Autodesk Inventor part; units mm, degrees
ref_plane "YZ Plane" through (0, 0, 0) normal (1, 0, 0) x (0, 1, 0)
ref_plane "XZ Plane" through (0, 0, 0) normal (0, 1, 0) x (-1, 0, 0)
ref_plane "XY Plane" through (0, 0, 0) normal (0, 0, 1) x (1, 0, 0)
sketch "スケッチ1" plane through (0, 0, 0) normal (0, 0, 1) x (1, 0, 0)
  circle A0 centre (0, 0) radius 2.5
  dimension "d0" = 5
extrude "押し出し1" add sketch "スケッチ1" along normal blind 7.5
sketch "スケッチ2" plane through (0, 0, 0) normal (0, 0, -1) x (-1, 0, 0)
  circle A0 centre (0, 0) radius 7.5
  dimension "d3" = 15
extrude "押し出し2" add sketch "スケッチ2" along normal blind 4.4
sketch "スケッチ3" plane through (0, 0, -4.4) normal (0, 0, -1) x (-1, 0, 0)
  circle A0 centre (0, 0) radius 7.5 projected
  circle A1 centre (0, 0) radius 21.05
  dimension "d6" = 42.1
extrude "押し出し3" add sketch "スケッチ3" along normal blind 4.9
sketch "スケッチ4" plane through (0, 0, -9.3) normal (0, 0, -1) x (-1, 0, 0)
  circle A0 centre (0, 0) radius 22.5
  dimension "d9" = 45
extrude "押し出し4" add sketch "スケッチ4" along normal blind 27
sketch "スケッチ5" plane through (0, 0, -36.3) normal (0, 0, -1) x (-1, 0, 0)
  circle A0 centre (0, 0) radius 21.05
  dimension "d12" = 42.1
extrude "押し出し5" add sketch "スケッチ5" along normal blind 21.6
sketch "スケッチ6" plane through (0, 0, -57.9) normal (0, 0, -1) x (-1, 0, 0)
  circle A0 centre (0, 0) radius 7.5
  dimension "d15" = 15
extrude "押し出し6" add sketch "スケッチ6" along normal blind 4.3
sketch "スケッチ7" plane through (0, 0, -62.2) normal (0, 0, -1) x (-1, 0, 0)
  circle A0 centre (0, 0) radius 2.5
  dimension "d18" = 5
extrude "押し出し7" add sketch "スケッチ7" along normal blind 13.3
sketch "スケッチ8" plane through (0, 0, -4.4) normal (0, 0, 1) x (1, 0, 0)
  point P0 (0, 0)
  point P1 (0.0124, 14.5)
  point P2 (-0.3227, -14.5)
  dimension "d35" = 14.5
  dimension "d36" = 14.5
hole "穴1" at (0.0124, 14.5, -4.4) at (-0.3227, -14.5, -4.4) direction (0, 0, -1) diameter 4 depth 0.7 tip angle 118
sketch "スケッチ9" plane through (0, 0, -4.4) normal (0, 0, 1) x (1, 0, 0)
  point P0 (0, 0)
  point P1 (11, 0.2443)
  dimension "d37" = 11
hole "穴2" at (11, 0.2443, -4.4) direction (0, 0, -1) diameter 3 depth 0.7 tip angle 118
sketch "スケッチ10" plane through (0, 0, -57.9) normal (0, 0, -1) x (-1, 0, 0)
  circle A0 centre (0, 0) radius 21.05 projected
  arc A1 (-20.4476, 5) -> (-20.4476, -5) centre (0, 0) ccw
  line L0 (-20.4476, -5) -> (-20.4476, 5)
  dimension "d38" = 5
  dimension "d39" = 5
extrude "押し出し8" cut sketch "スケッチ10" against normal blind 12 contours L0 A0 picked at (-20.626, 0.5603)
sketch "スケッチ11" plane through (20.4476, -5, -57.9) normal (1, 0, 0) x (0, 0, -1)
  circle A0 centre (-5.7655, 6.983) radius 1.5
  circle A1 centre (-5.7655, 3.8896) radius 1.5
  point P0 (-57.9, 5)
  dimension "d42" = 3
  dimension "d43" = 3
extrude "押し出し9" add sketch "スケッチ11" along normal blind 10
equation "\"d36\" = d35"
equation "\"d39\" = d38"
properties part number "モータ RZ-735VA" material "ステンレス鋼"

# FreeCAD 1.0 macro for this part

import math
import FreeCAD as App
import Part
import Sketcher
from FreeCAD import Vector

doc = App.newDocument("Part")
params = doc.addObject("Spreadsheet::Sheet", "Params")
for row, (alias, value) in enumerate([
    ("sketch1_diameter", "5 mm"),
    ("pad1_length", "7.5 mm"),
    ("sketch2_diameter", "15 mm"),
    ("pad2_length", "4.4 mm"),
    ("sketch3_diameter", "42.1 mm"),
    ("sketch3_diameter2", "15 mm"),
    ("pad3_length", "4.9 mm"),
    ("sketch4_diameter", "45 mm"),
    ("pad4_length", "27 mm"),
    ("sketch5_diameter", "42.1 mm"),
    ("pad5_length", "21.6 mm"),
    ("sketch6_diameter", "15 mm"),
    ("pad6_length", "4.3 mm"),
    ("sketch7_diameter", "5 mm"),
    ("pad7_length", "13.3 mm"),
    ("sketch8_diameter", "4 mm"),
    ("hole_diameter", "4 mm"),
    ("hole_depth", "0.7 mm"),
    ("sketch9_diameter", "3 mm"),
    ("hole2_diameter", "3 mm"),
    ("hole2_depth", "0.7 mm"),
    ("sketch10_radius", "21.05 mm"),
    ("pocket1_length", "12 mm"),
    ("sketch11_diameter", "3 mm"),
    ("pad8_length", "10 mm"),
], start=1):
    params.set(f"A{row}", alias)
    params.set(f"B{row}", "=" + value)
    params.setAlias(f"B{row}", alias)

body = doc.addObject("PartDesign::Body", "Body")
body.AllowCompound = True

sketch1 = doc.addObject("Sketcher::SketchObject", "Sketch")
body.addObject(sketch1)
sketch1.AttachmentSupport = (doc.XY_Plane, [""])
sketch1.MapMode = "FlatFace"
sketch1.addGeometry(Part.Circle(Vector(0, 0, 0), Vector(0, 0, 1), 2.5), False)
sketch1.addConstraint([
    Sketcher.Constraint("Coincident", 0, 3, -1, 1),
    Sketcher.Constraint("Diameter", 0, 5.0),
])
sketch1.setExpression("Constraints[1]", "Params.sketch1_diameter")
pad1 = doc.addObject("PartDesign::Pad", "Pad")
body.addObject(pad1)
pad1.Profile = sketch1
pad1.setExpression("Length", "Params.pad1_length")

sketch2 = doc.addObject("Sketcher::SketchObject", "Sketch001")
body.addObject(sketch2)
sketch2.AttachmentSupport = (doc.XY_Plane, [""])
sketch2.MapMode = "FlatFace"
sketch2.addGeometry(Part.Circle(Vector(0, 0, 0), Vector(0, 0, 1), 8), False)
sketch2.addConstraint([
    Sketcher.Constraint("Coincident", 0, 3, -1, 1),
    Sketcher.Constraint("Diameter", 0, 15.0),
])
sketch2.setExpression("Constraints[1]", "Params.sketch2_diameter")
pad2 = doc.addObject("PartDesign::Pad", "Pad001")
body.addObject(pad2)
pad2.Profile = sketch2
pad2.setExpression("Length", "Params.pad2_length")
pad2.Reversed = True

sketch3 = doc.addObject("Sketcher::SketchObject", "Sketch002")
body.addObject(sketch3)
sketch3.AttachmentSupport = (doc.XY_Plane, [""])
sketch3.MapMode = "FlatFace"
sketch3.AttachmentOffset = App.Placement(Vector(0, 0, -4.4), App.Rotation())
sketch3.addGeometry([
    Part.Circle(Vector(0, 0, 0), Vector(0, 0, 1), 21),
    Part.Circle(Vector(0, 0, 0), Vector(0, 0, 1), 8),
], False)
sketch3.addConstraint([
    Sketcher.Constraint("Coincident", 0, 3, -1, 1),
    Sketcher.Constraint("Coincident", 1, 3, -1, 1),
    Sketcher.Constraint("Diameter", 0, 42.1),
    Sketcher.Constraint("Diameter", 1, 15.0),
])
sketch3.setExpression("Constraints[2]", "Params.sketch3_diameter")
sketch3.setExpression("Constraints[3]", "Params.sketch3_diameter2")
pad3 = doc.addObject("PartDesign::Pad", "Pad002")
body.addObject(pad3)
pad3.Profile = sketch3
pad3.setExpression("Length", "Params.pad3_length")
pad3.Reversed = True

sketch4 = doc.addObject("Sketcher::SketchObject", "Sketch003")
body.addObject(sketch4)
sketch4.AttachmentSupport = (doc.XY_Plane, [""])
sketch4.MapMode = "FlatFace"
sketch4.AttachmentOffset = App.Placement(Vector(0, 0, -9.3), App.Rotation())
sketch4.addGeometry(Part.Circle(Vector(0, 0, 0), Vector(0, 0, 1), 22), False)
sketch4.addConstraint([
    Sketcher.Constraint("Coincident", 0, 3, -1, 1),
    Sketcher.Constraint("Diameter", 0, 45.0),
])
sketch4.setExpression("Constraints[1]", "Params.sketch4_diameter")
pad4 = doc.addObject("PartDesign::Pad", "Pad003")
body.addObject(pad4)
pad4.Profile = sketch4
pad4.setExpression("Length", "Params.pad4_length")
pad4.Reversed = True

sketch5 = doc.addObject("Sketcher::SketchObject", "Sketch004")
body.addObject(sketch5)
sketch5.AttachmentSupport = (doc.XY_Plane, [""])
sketch5.MapMode = "FlatFace"
sketch5.AttachmentOffset = App.Placement(Vector(0, 0, -36.3), App.Rotation())
sketch5.addGeometry(Part.Circle(Vector(0, 0, 0), Vector(0, 0, 1), 21), False)
sketch5.addConstraint([
    Sketcher.Constraint("Coincident", 0, 3, -1, 1),
    Sketcher.Constraint("Diameter", 0, 42.1),
])
sketch5.setExpression("Constraints[1]", "Params.sketch5_diameter")
pad5 = doc.addObject("PartDesign::Pad", "Pad004")
body.addObject(pad5)
pad5.Profile = sketch5
pad5.setExpression("Length", "Params.pad5_length")
pad5.Reversed = True

sketch6 = doc.addObject("Sketcher::SketchObject", "Sketch005")
body.addObject(sketch6)
sketch6.AttachmentSupport = (doc.XY_Plane, [""])
sketch6.MapMode = "FlatFace"
sketch6.AttachmentOffset = App.Placement(Vector(0, 0, -57.9), App.Rotation())
sketch6.addGeometry(Part.Circle(Vector(0, 0, 0), Vector(0, 0, 1), 8), False)
sketch6.addConstraint([
    Sketcher.Constraint("Coincident", 0, 3, -1, 1),
    Sketcher.Constraint("Diameter", 0, 15.0),
])
sketch6.setExpression("Constraints[1]", "Params.sketch6_diameter")
pad6 = doc.addObject("PartDesign::Pad", "Pad005")
body.addObject(pad6)
pad6.Profile = sketch6
pad6.setExpression("Length", "Params.pad6_length")
pad6.Reversed = True

sketch7 = doc.addObject("Sketcher::SketchObject", "Sketch006")
body.addObject(sketch7)
sketch7.AttachmentSupport = (doc.XY_Plane, [""])
sketch7.MapMode = "FlatFace"
sketch7.AttachmentOffset = App.Placement(Vector(0, 0, -62.2), App.Rotation())
sketch7.addGeometry(Part.Circle(Vector(0, 0, 0), Vector(0, 0, 1), 2.5), False)
sketch7.addConstraint([
    Sketcher.Constraint("Coincident", 0, 3, -1, 1),
    Sketcher.Constraint("Diameter", 0, 5.0),
])
sketch7.setExpression("Constraints[1]", "Params.sketch7_diameter")
pad7 = doc.addObject("PartDesign::Pad", "Pad006")
body.addObject(pad7)
pad7.Profile = sketch7
pad7.setExpression("Length", "Params.pad7_length")
pad7.Reversed = True

sketch8 = doc.addObject("Sketcher::SketchObject", "Sketch007")
body.addObject(sketch8)
sketch8.AttachmentSupport = (doc.XY_Plane, [""])
sketch8.MapMode = "FlatFace"
sketch8.AttachmentOffset = App.Placement(Vector(0, 0, -4.4), App.Rotation())
sketch8.addGeometry([
    Part.Circle(Vector(0, 14.5, 0), Vector(0, 0, 1), 2),
    Part.Circle(Vector(-0.3, -14.5, 0), Vector(0, 0, 1), 2),
], False)
sketch8.addConstraint([
    Sketcher.Constraint("Equal", 0, 1),
    Sketcher.Constraint("Diameter", 0, 4.0),
    Sketcher.Constraint("DistanceY", 1, 3, 0, 3, 29.0),
    Sketcher.Constraint("DistanceY", -1, 1, 0, 3, 14.5),
    Sketcher.Constraint("DistanceX", 1, 3, 0, 3, 0.335),
    Sketcher.Constraint("DistanceX", -1, 1, 0, 3, 0.0124),
])
sketch8.setExpression("Constraints[1]", "Params.sketch8_diameter")
doc.recompute()
hole = doc.addObject("PartDesign::Hole", "Hole")
body.addObject(hole)
hole.Profile = sketch8
hole.ThreadType = "None"
hole.setExpression("Diameter", "Params.hole_diameter")
hole.DepthType = "Dimension"
hole.setExpression("Depth", "Params.hole_depth")
hole.DrillPoint = "Angled"
hole.DrillPointAngle = 118

sketch9 = doc.addObject("Sketcher::SketchObject", "Sketch008")
body.addObject(sketch9)
sketch9.AttachmentSupport = (doc.XY_Plane, [""])
sketch9.MapMode = "FlatFace"
sketch9.AttachmentOffset = App.Placement(Vector(0, 0, -4.4), App.Rotation())
sketch9.addGeometry(Part.Circle(Vector(11, 0.2, 0), Vector(0, 0, 1), 1.5), False)
sketch9.addConstraint([
    Sketcher.Constraint("Diameter", 0, 3.0),
    Sketcher.Constraint("DistanceX", -1, 1, 0, 3, 11.0),
    Sketcher.Constraint("DistanceY", -1, 1, 0, 3, 0.2443),
])
sketch9.setExpression("Constraints[0]", "Params.sketch9_diameter")
doc.recompute()
hole2 = doc.addObject("PartDesign::Hole", "Hole001")
body.addObject(hole2)
hole2.Profile = sketch9
hole2.ThreadType = "None"
hole2.setExpression("Diameter", "Params.hole2_diameter")
hole2.DepthType = "Dimension"
hole2.setExpression("Depth", "Params.hole2_depth")
hole2.DrillPoint = "Angled"
hole2.DrillPointAngle = 118

sketch10 = doc.addObject("Sketcher::SketchObject", "Sketch009")
body.addObject(sketch10)
sketch10.AttachmentSupport = (doc.XY_Plane, [""])
sketch10.MapMode = "FlatFace"
sketch10.AttachmentOffset = App.Placement(Vector(0, 0, -57.9), App.Rotation())
sketch10.addGeometry([
    Part.LineSegment(Vector(20, -5, 0), Vector(20, 5, 0)),
    Part.ArcOfCircle(Part.Circle(Vector(0, 0, 0), Vector(0, 0, 1), 21), math.radians(-14), math.radians(14)),
], False)
sketch10.addConstraint([
    Sketcher.Constraint("Coincident", 0, 1, 1, 1),
    Sketcher.Constraint("Coincident", 1, 2, 0, 2),
    Sketcher.Constraint("Vertical", 0),
    Sketcher.Constraint("Coincident", 1, 3, -1, 1),
    Sketcher.Constraint("DistanceY", 0, 1, -1, 1, 5.0),
    Sketcher.Constraint("Radius", 1, 21.05),
])
sketch10.setExpression("Constraints[5]", "Params.sketch10_radius")
pocket1 = doc.addObject("PartDesign::Pocket", "Pocket")
body.addObject(pocket1)
pocket1.Profile = sketch10
pocket1.setExpression("Length", "Params.pocket1_length")
pocket1.Reversed = True

sketch11 = doc.addObject("Sketcher::SketchObject", "Sketch010")
body.addObject(sketch11)
sketch11.AttachmentSupport = (doc.YZ_Plane, [""])
sketch11.MapMode = "FlatFace"
sketch11.AttachmentOffset = App.Placement(Vector(0, 0, 20.4476), App.Rotation())
sketch11.addGeometry([
    Part.Circle(Vector(2, -52.1, 0), Vector(0, 0, 1), 1.5),
    Part.Circle(Vector(-1.1, -52.1, 0), Vector(0, 0, 1), 1.5),
], False)
sketch11.addConstraint([
    Sketcher.Constraint("Equal", 0, 1),
    Sketcher.Constraint("Horizontal", 0, 3, 1, 3),
    Sketcher.Constraint("Diameter", 0, 3.0),
    Sketcher.Constraint("DistanceX", -1, 1, 0, 3, 1.983),
    Sketcher.Constraint("DistanceY", 0, 3, -1, 1, 52.1345),
    Sketcher.Constraint("DistanceX", 1, 3, -1, 1, 1.1104),
])
sketch11.setExpression("Constraints[2]", "Params.sketch11_diameter")
pad8 = doc.addObject("PartDesign::Pad", "Pad007")
body.addObject(pad8)
pad8.Profile = sketch11
pad8.setExpression("Length", "Params.pad8_length")

doc.recompute()
